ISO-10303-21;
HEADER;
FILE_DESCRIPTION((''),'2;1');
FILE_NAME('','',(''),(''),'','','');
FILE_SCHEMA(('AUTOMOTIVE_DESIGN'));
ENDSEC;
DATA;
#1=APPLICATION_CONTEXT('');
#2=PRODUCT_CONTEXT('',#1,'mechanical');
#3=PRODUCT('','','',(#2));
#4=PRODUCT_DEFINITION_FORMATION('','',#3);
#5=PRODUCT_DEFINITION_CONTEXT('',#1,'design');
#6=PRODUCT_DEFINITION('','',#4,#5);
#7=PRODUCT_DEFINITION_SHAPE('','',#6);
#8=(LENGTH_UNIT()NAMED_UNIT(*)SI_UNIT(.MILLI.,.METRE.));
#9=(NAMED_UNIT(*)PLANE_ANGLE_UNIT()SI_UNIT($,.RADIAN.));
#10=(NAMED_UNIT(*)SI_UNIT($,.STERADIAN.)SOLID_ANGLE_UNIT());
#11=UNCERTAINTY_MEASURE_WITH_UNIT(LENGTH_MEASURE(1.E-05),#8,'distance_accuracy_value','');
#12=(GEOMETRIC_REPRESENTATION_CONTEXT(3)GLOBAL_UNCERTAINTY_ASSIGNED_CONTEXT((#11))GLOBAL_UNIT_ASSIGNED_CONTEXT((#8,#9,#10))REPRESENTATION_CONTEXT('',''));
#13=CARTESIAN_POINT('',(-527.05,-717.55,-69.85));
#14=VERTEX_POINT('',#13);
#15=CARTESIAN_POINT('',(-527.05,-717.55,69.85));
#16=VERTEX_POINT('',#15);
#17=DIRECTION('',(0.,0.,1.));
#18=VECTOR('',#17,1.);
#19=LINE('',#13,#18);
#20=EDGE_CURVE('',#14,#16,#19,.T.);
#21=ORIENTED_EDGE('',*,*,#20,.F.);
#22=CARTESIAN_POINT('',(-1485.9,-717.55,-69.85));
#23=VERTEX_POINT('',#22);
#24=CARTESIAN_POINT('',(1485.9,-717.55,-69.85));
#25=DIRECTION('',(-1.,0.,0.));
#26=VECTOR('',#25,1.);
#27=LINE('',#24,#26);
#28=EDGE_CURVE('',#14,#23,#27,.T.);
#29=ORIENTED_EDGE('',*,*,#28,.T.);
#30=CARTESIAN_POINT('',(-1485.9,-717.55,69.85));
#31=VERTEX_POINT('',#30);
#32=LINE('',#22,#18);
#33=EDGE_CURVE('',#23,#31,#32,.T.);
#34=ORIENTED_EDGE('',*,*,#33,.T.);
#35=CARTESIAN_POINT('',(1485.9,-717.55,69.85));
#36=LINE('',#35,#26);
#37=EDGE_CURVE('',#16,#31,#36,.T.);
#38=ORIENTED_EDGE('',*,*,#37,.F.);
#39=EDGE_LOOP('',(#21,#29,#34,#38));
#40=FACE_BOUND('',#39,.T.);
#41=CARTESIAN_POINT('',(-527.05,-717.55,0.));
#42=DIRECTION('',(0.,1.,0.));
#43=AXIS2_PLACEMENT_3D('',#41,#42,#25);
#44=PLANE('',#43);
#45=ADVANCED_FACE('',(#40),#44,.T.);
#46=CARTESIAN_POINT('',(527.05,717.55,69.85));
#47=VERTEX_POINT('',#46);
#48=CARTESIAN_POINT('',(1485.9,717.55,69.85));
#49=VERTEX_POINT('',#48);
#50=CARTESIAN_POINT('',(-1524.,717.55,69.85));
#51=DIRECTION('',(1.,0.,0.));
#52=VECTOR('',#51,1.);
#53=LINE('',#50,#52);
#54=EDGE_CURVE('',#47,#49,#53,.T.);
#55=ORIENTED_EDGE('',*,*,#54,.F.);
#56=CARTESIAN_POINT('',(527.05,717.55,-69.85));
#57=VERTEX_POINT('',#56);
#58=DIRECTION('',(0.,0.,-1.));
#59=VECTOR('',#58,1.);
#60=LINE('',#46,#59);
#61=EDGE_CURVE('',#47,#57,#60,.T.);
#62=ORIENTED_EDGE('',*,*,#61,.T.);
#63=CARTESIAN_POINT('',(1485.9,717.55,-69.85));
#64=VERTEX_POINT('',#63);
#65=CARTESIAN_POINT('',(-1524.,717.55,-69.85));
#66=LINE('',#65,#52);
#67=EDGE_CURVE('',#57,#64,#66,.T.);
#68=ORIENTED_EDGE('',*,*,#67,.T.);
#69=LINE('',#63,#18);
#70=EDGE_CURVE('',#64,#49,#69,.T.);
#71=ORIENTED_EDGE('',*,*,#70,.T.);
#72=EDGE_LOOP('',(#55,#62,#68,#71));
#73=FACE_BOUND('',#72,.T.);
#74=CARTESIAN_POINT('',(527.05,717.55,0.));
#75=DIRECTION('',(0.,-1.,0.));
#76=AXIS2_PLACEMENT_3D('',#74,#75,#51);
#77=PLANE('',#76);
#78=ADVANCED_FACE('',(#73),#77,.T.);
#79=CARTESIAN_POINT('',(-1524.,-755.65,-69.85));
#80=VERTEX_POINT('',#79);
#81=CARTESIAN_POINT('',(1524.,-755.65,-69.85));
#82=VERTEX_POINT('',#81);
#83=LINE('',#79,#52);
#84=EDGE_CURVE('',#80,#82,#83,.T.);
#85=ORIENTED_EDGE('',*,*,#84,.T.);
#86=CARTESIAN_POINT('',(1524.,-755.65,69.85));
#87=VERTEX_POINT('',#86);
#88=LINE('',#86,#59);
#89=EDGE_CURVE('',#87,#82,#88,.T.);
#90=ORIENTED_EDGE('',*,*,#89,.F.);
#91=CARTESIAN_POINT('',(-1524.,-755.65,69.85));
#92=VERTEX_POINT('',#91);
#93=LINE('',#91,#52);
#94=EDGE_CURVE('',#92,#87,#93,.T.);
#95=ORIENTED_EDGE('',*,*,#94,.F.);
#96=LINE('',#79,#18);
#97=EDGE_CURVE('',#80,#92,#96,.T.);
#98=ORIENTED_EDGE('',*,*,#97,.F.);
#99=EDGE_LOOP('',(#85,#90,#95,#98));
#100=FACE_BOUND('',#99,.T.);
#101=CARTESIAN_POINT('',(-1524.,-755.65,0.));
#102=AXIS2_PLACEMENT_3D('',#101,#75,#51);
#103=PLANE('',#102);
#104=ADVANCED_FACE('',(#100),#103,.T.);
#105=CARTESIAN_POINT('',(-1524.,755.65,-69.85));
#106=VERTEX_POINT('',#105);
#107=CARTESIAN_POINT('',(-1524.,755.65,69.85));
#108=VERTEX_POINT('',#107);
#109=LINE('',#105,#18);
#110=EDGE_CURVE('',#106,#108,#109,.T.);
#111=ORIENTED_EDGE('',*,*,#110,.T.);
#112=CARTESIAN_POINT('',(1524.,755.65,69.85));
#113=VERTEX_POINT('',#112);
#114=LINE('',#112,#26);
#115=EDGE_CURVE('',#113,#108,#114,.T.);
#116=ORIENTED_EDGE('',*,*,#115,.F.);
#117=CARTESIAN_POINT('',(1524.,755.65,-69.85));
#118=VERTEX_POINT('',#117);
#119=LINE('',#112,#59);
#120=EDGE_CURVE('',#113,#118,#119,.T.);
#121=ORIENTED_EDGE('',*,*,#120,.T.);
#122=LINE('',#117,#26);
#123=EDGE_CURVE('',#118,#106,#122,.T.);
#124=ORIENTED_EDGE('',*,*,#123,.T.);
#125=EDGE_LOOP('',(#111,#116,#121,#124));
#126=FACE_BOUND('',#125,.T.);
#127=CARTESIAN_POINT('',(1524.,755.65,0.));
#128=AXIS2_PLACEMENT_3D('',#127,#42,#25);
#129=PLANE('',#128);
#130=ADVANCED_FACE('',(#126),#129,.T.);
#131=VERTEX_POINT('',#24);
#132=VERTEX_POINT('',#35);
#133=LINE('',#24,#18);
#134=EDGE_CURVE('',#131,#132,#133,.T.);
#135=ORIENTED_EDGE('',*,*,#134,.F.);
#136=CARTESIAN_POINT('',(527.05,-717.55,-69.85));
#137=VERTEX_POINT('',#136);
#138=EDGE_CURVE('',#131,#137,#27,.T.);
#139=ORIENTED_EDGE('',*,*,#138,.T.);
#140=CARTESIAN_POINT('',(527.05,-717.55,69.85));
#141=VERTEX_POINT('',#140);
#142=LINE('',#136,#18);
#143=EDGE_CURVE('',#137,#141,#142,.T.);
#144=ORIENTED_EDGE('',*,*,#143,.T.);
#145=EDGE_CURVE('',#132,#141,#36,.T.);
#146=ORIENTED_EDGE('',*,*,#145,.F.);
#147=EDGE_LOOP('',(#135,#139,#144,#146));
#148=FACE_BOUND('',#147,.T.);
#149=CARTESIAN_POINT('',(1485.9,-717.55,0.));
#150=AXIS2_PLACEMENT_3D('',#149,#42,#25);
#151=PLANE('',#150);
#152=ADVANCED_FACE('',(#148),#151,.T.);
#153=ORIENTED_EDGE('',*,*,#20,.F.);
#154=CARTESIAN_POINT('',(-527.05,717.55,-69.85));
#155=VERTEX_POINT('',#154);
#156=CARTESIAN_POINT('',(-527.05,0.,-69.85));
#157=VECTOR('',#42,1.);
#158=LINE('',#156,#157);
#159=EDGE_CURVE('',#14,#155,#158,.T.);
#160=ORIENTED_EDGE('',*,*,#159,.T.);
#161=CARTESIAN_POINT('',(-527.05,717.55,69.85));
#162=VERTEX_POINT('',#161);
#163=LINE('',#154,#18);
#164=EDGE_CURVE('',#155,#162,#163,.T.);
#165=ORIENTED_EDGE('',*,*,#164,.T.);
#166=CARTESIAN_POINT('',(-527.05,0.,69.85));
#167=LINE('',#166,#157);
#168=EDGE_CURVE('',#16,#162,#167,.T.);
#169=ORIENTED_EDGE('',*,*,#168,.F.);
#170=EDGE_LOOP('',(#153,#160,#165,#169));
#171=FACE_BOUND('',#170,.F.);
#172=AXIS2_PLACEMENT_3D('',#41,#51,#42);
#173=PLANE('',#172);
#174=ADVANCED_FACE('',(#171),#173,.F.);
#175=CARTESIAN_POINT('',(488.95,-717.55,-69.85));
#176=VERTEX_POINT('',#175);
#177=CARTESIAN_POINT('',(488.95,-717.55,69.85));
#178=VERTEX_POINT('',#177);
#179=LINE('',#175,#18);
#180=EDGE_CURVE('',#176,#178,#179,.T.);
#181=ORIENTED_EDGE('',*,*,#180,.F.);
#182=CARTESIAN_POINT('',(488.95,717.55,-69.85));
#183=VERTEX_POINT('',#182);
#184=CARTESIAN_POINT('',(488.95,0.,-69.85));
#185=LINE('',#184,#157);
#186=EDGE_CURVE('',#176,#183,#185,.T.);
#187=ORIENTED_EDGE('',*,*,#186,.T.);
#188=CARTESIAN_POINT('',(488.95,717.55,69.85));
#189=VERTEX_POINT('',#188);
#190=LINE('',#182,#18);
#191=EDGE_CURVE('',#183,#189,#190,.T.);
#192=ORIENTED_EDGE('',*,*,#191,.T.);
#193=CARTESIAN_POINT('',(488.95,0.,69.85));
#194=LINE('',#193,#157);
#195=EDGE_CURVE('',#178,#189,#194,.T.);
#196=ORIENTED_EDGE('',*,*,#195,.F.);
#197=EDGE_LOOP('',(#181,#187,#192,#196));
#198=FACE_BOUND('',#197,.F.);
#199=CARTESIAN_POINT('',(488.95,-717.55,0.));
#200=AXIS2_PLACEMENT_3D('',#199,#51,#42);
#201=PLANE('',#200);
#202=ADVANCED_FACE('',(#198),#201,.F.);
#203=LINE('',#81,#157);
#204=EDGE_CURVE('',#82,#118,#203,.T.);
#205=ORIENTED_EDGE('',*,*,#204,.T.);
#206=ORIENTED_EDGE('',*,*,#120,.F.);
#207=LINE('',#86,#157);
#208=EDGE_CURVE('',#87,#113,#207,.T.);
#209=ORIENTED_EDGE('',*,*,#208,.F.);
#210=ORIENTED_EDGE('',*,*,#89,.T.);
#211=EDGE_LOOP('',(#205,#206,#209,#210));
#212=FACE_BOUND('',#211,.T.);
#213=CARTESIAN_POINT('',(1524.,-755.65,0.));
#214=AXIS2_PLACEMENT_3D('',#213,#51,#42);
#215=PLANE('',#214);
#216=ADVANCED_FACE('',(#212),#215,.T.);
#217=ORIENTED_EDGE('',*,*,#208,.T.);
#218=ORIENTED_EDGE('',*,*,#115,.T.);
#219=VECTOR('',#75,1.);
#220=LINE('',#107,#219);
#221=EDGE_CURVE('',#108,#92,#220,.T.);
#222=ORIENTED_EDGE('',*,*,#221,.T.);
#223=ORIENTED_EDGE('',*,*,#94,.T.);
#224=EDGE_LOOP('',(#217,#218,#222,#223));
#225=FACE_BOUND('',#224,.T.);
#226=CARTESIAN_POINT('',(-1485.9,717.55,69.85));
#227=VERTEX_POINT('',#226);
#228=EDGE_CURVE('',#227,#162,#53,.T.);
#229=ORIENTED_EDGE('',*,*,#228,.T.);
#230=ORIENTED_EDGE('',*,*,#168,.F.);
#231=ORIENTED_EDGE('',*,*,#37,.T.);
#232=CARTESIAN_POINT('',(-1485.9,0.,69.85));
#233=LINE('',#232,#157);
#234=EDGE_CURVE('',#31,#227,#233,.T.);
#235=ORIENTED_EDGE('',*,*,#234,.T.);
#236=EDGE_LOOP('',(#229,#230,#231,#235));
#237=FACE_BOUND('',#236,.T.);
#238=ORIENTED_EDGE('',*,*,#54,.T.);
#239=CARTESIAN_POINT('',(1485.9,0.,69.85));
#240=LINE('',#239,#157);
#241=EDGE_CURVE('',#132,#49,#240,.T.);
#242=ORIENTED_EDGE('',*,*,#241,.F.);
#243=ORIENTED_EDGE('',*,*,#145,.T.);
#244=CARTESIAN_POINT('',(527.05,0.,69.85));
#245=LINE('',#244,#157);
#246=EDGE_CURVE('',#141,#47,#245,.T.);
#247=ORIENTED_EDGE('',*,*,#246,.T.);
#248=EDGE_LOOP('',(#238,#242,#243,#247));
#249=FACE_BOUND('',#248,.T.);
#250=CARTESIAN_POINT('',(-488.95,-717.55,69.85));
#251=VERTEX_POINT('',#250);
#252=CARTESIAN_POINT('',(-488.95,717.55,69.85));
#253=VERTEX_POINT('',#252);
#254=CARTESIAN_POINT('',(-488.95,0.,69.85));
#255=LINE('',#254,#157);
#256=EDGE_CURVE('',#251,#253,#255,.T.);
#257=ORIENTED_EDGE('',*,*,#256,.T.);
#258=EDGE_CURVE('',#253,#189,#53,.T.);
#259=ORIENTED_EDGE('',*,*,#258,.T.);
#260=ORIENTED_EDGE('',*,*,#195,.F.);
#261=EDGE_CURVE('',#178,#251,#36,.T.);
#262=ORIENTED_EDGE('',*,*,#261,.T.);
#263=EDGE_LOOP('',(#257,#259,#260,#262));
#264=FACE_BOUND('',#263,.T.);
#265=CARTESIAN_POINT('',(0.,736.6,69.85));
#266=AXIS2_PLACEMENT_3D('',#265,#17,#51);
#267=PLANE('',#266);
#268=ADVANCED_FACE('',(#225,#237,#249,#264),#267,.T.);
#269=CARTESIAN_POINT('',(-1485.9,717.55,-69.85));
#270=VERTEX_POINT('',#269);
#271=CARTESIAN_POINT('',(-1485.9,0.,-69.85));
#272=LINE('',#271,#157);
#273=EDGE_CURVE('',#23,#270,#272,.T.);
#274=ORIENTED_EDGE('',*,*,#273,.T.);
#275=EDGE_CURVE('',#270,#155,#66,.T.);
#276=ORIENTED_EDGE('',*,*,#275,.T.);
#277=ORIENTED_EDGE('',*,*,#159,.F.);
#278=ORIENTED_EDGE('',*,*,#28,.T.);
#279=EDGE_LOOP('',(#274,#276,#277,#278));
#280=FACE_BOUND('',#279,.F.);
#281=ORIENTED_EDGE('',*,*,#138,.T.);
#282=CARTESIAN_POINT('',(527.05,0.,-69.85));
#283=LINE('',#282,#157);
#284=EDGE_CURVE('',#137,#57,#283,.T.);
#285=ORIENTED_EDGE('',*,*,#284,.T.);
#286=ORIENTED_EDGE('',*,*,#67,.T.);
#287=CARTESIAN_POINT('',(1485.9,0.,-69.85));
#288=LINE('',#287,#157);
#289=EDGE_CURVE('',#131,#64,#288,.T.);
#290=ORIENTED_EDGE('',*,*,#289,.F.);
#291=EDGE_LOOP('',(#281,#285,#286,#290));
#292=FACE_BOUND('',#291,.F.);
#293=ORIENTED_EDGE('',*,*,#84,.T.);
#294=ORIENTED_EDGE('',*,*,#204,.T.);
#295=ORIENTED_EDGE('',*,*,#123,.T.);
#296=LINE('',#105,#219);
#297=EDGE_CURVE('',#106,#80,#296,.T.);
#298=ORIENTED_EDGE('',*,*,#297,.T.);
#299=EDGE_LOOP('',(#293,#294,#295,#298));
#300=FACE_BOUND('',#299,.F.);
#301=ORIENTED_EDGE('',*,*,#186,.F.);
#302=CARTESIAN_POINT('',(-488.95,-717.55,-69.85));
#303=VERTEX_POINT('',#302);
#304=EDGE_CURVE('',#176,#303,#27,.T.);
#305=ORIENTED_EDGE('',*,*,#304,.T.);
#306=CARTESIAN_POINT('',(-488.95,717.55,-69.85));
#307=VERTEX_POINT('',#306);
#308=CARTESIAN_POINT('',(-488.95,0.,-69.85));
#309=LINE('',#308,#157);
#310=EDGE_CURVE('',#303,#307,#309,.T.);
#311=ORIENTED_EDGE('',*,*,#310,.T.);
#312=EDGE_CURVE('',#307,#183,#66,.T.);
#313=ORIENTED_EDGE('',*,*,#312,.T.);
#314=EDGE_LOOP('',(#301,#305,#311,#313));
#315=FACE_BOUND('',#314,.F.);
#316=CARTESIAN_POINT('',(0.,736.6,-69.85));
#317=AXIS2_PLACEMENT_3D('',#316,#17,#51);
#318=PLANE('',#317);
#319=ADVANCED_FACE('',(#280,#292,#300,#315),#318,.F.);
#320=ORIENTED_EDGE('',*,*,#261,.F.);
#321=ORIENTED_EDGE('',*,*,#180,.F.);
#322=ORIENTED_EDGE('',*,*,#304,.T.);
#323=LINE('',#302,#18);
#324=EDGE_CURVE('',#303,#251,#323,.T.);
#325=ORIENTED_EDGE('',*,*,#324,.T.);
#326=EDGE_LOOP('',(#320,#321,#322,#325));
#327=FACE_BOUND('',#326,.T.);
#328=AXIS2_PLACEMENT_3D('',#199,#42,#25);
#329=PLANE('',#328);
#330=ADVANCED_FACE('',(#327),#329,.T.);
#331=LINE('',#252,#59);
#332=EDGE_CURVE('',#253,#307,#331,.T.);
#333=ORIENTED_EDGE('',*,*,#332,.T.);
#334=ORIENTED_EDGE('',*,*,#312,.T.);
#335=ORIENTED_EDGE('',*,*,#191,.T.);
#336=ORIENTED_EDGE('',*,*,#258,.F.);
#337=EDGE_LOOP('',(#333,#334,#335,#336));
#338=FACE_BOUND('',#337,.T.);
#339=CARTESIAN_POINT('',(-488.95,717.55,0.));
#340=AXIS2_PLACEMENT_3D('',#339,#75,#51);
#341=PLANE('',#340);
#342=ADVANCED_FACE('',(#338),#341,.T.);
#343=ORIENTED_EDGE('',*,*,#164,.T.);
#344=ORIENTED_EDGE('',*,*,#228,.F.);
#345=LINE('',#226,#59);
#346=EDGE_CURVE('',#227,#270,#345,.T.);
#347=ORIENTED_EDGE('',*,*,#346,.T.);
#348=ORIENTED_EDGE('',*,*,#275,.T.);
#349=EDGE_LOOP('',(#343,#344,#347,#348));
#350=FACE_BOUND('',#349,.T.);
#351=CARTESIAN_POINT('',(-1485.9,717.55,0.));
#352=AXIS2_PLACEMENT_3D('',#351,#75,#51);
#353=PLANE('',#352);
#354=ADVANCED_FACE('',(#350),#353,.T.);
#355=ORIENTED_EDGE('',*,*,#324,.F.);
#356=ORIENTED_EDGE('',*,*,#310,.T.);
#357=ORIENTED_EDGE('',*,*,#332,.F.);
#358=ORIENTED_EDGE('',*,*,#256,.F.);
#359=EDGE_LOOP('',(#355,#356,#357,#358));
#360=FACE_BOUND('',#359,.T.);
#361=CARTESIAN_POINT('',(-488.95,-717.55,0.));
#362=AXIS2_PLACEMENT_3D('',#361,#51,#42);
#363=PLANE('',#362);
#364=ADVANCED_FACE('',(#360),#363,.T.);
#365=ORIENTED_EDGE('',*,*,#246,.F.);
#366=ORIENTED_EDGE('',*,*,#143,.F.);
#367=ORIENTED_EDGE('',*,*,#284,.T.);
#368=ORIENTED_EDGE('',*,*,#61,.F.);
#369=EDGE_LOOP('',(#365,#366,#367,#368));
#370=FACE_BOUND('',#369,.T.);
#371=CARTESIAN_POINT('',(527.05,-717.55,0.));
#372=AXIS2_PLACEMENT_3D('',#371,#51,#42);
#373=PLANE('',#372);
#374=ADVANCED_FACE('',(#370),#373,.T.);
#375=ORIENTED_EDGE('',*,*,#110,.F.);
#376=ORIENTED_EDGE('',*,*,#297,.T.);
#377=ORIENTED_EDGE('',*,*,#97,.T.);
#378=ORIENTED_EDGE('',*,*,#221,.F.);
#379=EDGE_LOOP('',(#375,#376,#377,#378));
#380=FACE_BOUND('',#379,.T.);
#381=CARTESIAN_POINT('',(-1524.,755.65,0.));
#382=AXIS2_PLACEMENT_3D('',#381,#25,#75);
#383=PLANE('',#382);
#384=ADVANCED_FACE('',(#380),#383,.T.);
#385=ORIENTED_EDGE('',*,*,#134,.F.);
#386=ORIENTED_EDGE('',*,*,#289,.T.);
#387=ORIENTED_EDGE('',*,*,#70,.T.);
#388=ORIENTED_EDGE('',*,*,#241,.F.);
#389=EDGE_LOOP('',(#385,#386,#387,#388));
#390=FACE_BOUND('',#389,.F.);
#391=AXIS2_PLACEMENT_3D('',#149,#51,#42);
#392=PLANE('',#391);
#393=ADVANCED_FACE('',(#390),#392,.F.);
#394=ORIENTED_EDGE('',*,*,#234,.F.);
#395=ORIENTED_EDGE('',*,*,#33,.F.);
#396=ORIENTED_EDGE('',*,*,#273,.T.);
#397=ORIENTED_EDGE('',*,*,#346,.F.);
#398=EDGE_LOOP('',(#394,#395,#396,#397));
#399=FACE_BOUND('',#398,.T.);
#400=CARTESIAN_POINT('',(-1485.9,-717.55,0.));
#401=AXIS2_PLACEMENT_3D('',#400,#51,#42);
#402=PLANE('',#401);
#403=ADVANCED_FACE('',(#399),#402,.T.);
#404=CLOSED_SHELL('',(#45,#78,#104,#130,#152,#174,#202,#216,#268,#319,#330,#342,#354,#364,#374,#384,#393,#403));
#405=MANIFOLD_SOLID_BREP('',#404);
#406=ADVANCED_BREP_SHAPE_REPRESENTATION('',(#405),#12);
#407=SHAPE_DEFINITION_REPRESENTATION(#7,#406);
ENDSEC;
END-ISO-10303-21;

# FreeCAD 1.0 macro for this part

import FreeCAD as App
import Part
import Sketcher
from FreeCAD import Vector
Q = App.Units.Quantity

doc = App.newDocument("Part")
body = doc.addObject("PartDesign::Body", "Body")

# Sketch on XY plane
sketch1 = body.newObject("Sketcher::SketchObject", "Sketch")
sketch1.AttachmentSupport = (doc.getObject("XY_Plane"), [""])
sketch1.MapMode = "FlatFace"
sketch1.addGeometry(Part.LineSegment(Vector(1524, 756, 0), Vector(-1524, 756, 0)), False)
sketch1.addGeometry(Part.LineSegment(Vector(-1524, 756, 0), Vector(-1524, -756, 0)), False)
sketch1.addGeometry(Part.LineSegment(Vector(-1524, -756, 0), Vector(1524, -756, 0)), False)
sketch1.addGeometry(Part.LineSegment(Vector(1524, -756, 0), Vector(1524, 756, 0)), False)
sketch1.addGeometry(Part.LineSegment(Vector(-1486, 718, 0), Vector(-527, 718, 0)), False)
sketch1.addGeometry(Part.LineSegment(Vector(-527, 718, 0), Vector(-527, -718, 0)), False)
sketch1.addGeometry(Part.LineSegment(Vector(-527, -718, 0), Vector(-1486, -718, 0)), False)
sketch1.addGeometry(Part.LineSegment(Vector(-1486, -718, 0), Vector(-1486, 718, 0)), False)
sketch1.addGeometry(Part.LineSegment(Vector(-489, 718, 0), Vector(489, 718, 0)), False)
sketch1.addGeometry(Part.LineSegment(Vector(489, 718, 0), Vector(489, -718, 0)), False)
sketch1.addGeometry(Part.LineSegment(Vector(489, -718, 0), Vector(-489, -718, 0)), False)
sketch1.addGeometry(Part.LineSegment(Vector(-489, -718, 0), Vector(-489, 718, 0)), False)
sketch1.addGeometry(Part.LineSegment(Vector(527, 718, 0), Vector(1486, 718, 0)), False)
sketch1.addGeometry(Part.LineSegment(Vector(1486, 718, 0), Vector(1486, -718, 0)), False)
sketch1.addGeometry(Part.LineSegment(Vector(1486, -718, 0), Vector(527, -718, 0)), False)
sketch1.addGeometry(Part.LineSegment(Vector(527, -718, 0), Vector(527, 718, 0)), False)
sketch1.addConstraint(Sketcher.Constraint("Coincident", 0, 2, 1, 1))
sketch1.addConstraint(Sketcher.Constraint("Coincident", 1, 2, 2, 1))
sketch1.addConstraint(Sketcher.Constraint("Coincident", 2, 2, 3, 1))
sketch1.addConstraint(Sketcher.Constraint("Coincident", 3, 2, 0, 1))
sketch1.addConstraint(Sketcher.Constraint("Coincident", 4, 2, 5, 1))
sketch1.addConstraint(Sketcher.Constraint("Coincident", 5, 2, 6, 1))
sketch1.addConstraint(Sketcher.Constraint("Coincident", 6, 2, 7, 1))
sketch1.addConstraint(Sketcher.Constraint("Coincident", 7, 2, 4, 1))
sketch1.addConstraint(Sketcher.Constraint("Coincident", 8, 2, 9, 1))
sketch1.addConstraint(Sketcher.Constraint("Coincident", 9, 2, 10, 1))
sketch1.addConstraint(Sketcher.Constraint("Coincident", 10, 2, 11, 1))
sketch1.addConstraint(Sketcher.Constraint("Coincident", 11, 2, 8, 1))
sketch1.addConstraint(Sketcher.Constraint("Coincident", 12, 2, 13, 1))
sketch1.addConstraint(Sketcher.Constraint("Coincident", 13, 2, 14, 1))
sketch1.addConstraint(Sketcher.Constraint("Coincident", 14, 2, 15, 1))
sketch1.addConstraint(Sketcher.Constraint("Coincident", 15, 2, 12, 1))
sketch1.addConstraint(Sketcher.Constraint("Horizontal", 0))
sketch1.addConstraint(Sketcher.Constraint("Vertical", 1))
sketch1.addConstraint(Sketcher.Constraint("Horizontal", 2))
sketch1.addConstraint(Sketcher.Constraint("Vertical", 3))
sketch1.addConstraint(Sketcher.Constraint("Horizontal", 4))
sketch1.addConstraint(Sketcher.Constraint("Vertical", 5))
sketch1.addConstraint(Sketcher.Constraint("Horizontal", 6))
sketch1.addConstraint(Sketcher.Constraint("Vertical", 7))
sketch1.addConstraint(Sketcher.Constraint("Horizontal", 8))
sketch1.addConstraint(Sketcher.Constraint("Vertical", 9))
sketch1.addConstraint(Sketcher.Constraint("Horizontal", 10))
sketch1.addConstraint(Sketcher.Constraint("Vertical", 11))
sketch1.addConstraint(Sketcher.Constraint("Horizontal", 12))
sketch1.addConstraint(Sketcher.Constraint("Vertical", 13))
sketch1.addConstraint(Sketcher.Constraint("Horizontal", 14))
sketch1.addConstraint(Sketcher.Constraint("Vertical", 15))
sketch1.addConstraint(Sketcher.Constraint("Symmetric", 0, 2, 2, 2, -1, 1))
sketch1.addConstraint(Sketcher.Constraint("Symmetric", 8, 2, 10, 2, -1, 1))
sketch1.addConstraint(Sketcher.Constraint("Symmetric", 6, 2, 12, 2, -1, 1))
sketch1.addConstraint(Sketcher.Constraint("Symmetric", 4, 2, 14, 2, -1, 1))
sketch1.addConstraint(Sketcher.Constraint("Horizontal", 7, 2, 8, 2))
sketch1.addConstraint(Sketcher.Constraint("Horizontal", 6, 2, 9, 2))
sketch1.addConstraint(Sketcher.Constraint("DistanceX", 0, 2, 0, 1, Q("120 in")))
sketch1.addConstraint(Sketcher.Constraint("DistanceX", 8, 1, 8, 2, Q("38.5 in")))
sketch1.addConstraint(Sketcher.Constraint("DistanceY", 1, 2, 1, 1, Q("59.5 in")))
sketch1.addConstraint(Sketcher.Constraint("DistanceY", 5, 2, 5, 1, Q("56.5 in")))
sketch1.addConstraint(Sketcher.Constraint("DistanceX", 4, 2, 8, 2, Q("40 in")))
sketch1.addConstraint(Sketcher.Constraint("DistanceX", 4, 1, 4, 2, Q("37.75 in")))
pad1 = body.newObject("PartDesign::Pad", "Pad")
pad1.Profile = sketch1
pad1.Length = Q("5.5 in")
pad1.Midplane = True

doc.recompute()
